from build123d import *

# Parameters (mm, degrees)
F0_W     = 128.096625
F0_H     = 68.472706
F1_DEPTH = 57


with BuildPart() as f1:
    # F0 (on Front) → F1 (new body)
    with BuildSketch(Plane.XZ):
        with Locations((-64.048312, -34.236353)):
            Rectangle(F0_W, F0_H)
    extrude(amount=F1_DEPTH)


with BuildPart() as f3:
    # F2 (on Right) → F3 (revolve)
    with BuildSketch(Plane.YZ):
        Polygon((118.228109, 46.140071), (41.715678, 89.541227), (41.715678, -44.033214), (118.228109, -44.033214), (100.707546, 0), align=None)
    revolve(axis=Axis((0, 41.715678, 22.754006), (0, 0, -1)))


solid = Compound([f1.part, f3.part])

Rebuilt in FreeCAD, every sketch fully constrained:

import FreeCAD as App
import Part
import Sketcher
Q = App.Units.Quantity

doc = App.newDocument("Part")
body = doc.addObject("PartDesign::Body", "Body")

sketch1 = body.newObject("Sketcher::SketchObject", "Sketch")
sketch1.AttachmentSupport = (doc.getObject("XZ_Plane"), [""])
sketch1.MapMode = "FlatFace"
sketch1.addGeometry(Part.LineSegment(App.Vector(-128, 0, 0), App.Vector(-128, -68, 0)), False)
sketch1.addGeometry(Part.LineSegment(App.Vector(-128, -68, 0), App.Vector(0, -68, 0)), False)
sketch1.addGeometry(Part.LineSegment(App.Vector(0, -68, 0), App.Vector(0, 0, 0)), False)
sketch1.addGeometry(Part.LineSegment(App.Vector(0, 0, 0), App.Vector(-128, 0, 0)), False)
sketch1.addConstraint(Sketcher.Constraint("Coincident", 0, 2, 1, 1))
sketch1.addConstraint(Sketcher.Constraint("Coincident", 1, 2, 2, 1))
sketch1.addConstraint(Sketcher.Constraint("Coincident", 2, 2, 3, 1))
sketch1.addConstraint(Sketcher.Constraint("Coincident", 3, 2, 0, 1))
sketch1.addConstraint(Sketcher.Constraint("Vertical", 0))
sketch1.addConstraint(Sketcher.Constraint("Horizontal", 1))
sketch1.addConstraint(Sketcher.Constraint("Vertical", 2))
sketch1.addConstraint(Sketcher.Constraint("Horizontal", 3))
sketch1.addConstraint(Sketcher.Constraint("Coincident", 2, 2, -1, 1))
sketch1.addConstraint(Sketcher.Constraint("DistanceX", 1, 1, 1, 2, Q("128.096625 mm")))
sketch1.addConstraint(Sketcher.Constraint("DistanceY", 0, 2, 0, 1, Q("68.472706 mm")))
pad1 = body.newObject("PartDesign::Pad", "Pad")
pad1.Profile = sketch1
pad1.Length = 57
body2 = doc.addObject("PartDesign::Body", "Body001")

sketch2 = body2.newObject("Sketcher::SketchObject", "Sketch001")
sketch2.AttachmentSupport = (doc.getObject("YZ_Plane001"), [""])
sketch2.MapMode = "FlatFace"
sketch2.addGeometry(Part.LineSegment(App.Vector(118, 46, 0), App.Vector(42, 90, 0)), False)
sketch2.addGeometry(Part.LineSegment(App.Vector(42, 90, 0), App.Vector(42, -44, 0)), False)
sketch2.addGeometry(Part.LineSegment(App.Vector(42, -44, 0), App.Vector(118, -44, 0)), False)
sketch2.addGeometry(Part.LineSegment(App.Vector(118, -44, 0), App.Vector(101, 0, 0)), False)
sketch2.addGeometry(Part.LineSegment(App.Vector(101, 0, 0), App.Vector(118, 46, 0)), False)
sketch2.addGeometry(Part.LineSegment(App.Vector(42, 90, 0), App.Vector(42, -44, 0)), True)
sketch2.addConstraint(Sketcher.Constraint("Coincident", 0, 2, 1, 1))
sketch2.addConstraint(Sketcher.Constraint("Coincident", 1, 2, 2, 1))
sketch2.addConstraint(Sketcher.Constraint("Coincident", 2, 2, 3, 1))
sketch2.addConstraint(Sketcher.Constraint("Coincident", 3, 2, 4, 1))
sketch2.addConstraint(Sketcher.Constraint("Coincident", 4, 2, 0, 1))
sketch2.addConstraint(Sketcher.Constraint("Vertical", 1))
sketch2.addConstraint(Sketcher.Constraint("Horizontal", 2))
sketch2.addConstraint(Sketcher.Constraint("Vertical", 5))
sketch2.addConstraint(Sketcher.Constraint("Coincident", 5, 1, 0, 2))
sketch2.addConstraint(Sketcher.Constraint("PointOnObject", 3, 2, -1))
sketch2.addConstraint(Sketcher.Constraint("Horizontal", 2, 2, 5, 2))
sketch2.addConstraint(Sketcher.Constraint("Vertical", 2, 2, 4, 2))
sketch2.addConstraint(Sketcher.Constraint("DistanceX", 2, 1, 2, 2, Q("76.512431 mm")))
sketch2.addConstraint(Sketcher.Constraint("DistanceY", 1, 2, 1, 1, Q("133.574441 mm")))
sketch2.addConstraint(Sketcher.Constraint("DistanceX", -1, 1, 2, 2, Q("118.228109 mm")))
sketch2.addConstraint(Sketcher.Constraint("DistanceY", -1, 1, 4, 2, Q("46.140071 mm")))
sketch2.addConstraint(Sketcher.Constraint("Distance", 0, Q("87.964836 mm")))
sketch2.addConstraint(Sketcher.Constraint("Distance", 3, Q("47.390865 mm")))
revolution = body2.newObject("PartDesign::Revolution", "Revolution")
revolution.Profile = sketch2
revolution.ReferenceAxis = (sketch2, ["Axis0"])
revolution.Angle = 360

doc.recompute()
